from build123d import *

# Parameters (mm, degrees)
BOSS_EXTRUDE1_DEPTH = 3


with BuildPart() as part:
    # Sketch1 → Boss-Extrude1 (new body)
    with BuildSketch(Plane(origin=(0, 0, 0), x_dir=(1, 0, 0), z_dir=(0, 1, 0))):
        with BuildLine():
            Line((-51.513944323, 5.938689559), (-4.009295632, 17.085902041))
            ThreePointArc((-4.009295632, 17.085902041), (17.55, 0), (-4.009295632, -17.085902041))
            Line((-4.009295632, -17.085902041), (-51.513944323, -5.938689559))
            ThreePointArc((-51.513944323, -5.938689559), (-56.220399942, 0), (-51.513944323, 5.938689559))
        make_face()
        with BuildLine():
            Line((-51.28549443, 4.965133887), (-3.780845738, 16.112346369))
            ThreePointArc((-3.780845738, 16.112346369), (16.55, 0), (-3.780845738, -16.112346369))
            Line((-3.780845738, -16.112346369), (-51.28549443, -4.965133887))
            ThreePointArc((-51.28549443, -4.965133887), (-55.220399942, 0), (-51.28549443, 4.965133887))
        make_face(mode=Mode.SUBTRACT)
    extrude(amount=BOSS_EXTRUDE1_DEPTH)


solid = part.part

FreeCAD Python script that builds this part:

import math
import FreeCAD as App
import Part
import Sketcher
from FreeCAD import Vector

doc = App.newDocument("Part")
body = doc.addObject("PartDesign::Body", "Body")

# Sketch on XZ plane
sketch1 = body.newObject("Sketcher::SketchObject", "Sketch")
sketch1.AttachmentSupport = (doc.getObject("XZ_Plane"), [""])
sketch1.MapMode = "FlatFace"
sketch1.addGeometry([
    Part.LineSegment(Vector(-4.009296, -17.085902, 0), Vector(-51.513944, -5.93869, 0)),  # 0
    Part.ArcOfCircle(Part.Circle(Vector(-50.1204, 0, 0), Vector(0, 0, 1), 6.1), math.radians(103.205828), math.radians(256.794172)),  # 1
    Part.LineSegment(Vector(-51.513944, 5.93869, 0), Vector(-4.009296, 17.085902, 0)),  # 2
    Part.ArcOfCircle(Part.Circle(Vector(0, 0, 0), Vector(0, 0, 1), 17.55), math.radians(-103.205828), math.radians(103.205828)),  # 3
    Part.LineSegment(Vector(-51.285494, -4.965134, 0), Vector(-3.780846, -16.112346, 0)),  # 4
    Part.ArcOfCircle(Part.Circle(Vector(0, 0, 0), Vector(0, 0, 1), 16.55), math.radians(-103.205828), math.radians(103.205828)),  # 5
    Part.LineSegment(Vector(-3.780846, 16.112346, 0), Vector(-51.285494, 4.965134, 0)),  # 6
    Part.ArcOfCircle(Part.Circle(Vector(-50.1204, 0, 0), Vector(0, 0, 1), 5.1), math.radians(103.205828), math.radians(256.794172)),  # 7
], False)
sketch1.addConstraint([
    Sketcher.Constraint("Tangent", 0, 2, 1, 2),
    Sketcher.Constraint("Tangent", 1, 1, 2, 1),
    Sketcher.Constraint("Tangent", 2, 2, 3, 2),
    Sketcher.Constraint("Tangent", 3, 1, 0, 1),
    Sketcher.Constraint("Tangent", 4, 2, 5, 1),
    Sketcher.Constraint("Tangent", 5, 2, 6, 1),
    Sketcher.Constraint("Tangent", 6, 2, 7, 1),
    Sketcher.Constraint("Tangent", 7, 2, 4, 1),
    Sketcher.Constraint("Coincident", 3, 3, -1, 1),
    Sketcher.Constraint("Coincident", 5, 3, -1, 1),
    Sketcher.Constraint("Coincident", 7, 3, 1, 3),
    Sketcher.Constraint("PointOnObject", 1, 3, -1),
    Sketcher.Constraint("Parallel", 0, 4),
    Sketcher.Constraint("Radius", 1, 6.1),
    Sketcher.Constraint("Radius", 7, 5.1),
    Sketcher.Constraint("Radius", 3, 17.55),
    Sketcher.Constraint("Distance", 0, 48.795),
])
pad1 = body.newObject("PartDesign::Pad", "Pad")
pad1.Profile = sketch1
pad1.Length = 3
pad1.Reversed = True

doc.recompute()
